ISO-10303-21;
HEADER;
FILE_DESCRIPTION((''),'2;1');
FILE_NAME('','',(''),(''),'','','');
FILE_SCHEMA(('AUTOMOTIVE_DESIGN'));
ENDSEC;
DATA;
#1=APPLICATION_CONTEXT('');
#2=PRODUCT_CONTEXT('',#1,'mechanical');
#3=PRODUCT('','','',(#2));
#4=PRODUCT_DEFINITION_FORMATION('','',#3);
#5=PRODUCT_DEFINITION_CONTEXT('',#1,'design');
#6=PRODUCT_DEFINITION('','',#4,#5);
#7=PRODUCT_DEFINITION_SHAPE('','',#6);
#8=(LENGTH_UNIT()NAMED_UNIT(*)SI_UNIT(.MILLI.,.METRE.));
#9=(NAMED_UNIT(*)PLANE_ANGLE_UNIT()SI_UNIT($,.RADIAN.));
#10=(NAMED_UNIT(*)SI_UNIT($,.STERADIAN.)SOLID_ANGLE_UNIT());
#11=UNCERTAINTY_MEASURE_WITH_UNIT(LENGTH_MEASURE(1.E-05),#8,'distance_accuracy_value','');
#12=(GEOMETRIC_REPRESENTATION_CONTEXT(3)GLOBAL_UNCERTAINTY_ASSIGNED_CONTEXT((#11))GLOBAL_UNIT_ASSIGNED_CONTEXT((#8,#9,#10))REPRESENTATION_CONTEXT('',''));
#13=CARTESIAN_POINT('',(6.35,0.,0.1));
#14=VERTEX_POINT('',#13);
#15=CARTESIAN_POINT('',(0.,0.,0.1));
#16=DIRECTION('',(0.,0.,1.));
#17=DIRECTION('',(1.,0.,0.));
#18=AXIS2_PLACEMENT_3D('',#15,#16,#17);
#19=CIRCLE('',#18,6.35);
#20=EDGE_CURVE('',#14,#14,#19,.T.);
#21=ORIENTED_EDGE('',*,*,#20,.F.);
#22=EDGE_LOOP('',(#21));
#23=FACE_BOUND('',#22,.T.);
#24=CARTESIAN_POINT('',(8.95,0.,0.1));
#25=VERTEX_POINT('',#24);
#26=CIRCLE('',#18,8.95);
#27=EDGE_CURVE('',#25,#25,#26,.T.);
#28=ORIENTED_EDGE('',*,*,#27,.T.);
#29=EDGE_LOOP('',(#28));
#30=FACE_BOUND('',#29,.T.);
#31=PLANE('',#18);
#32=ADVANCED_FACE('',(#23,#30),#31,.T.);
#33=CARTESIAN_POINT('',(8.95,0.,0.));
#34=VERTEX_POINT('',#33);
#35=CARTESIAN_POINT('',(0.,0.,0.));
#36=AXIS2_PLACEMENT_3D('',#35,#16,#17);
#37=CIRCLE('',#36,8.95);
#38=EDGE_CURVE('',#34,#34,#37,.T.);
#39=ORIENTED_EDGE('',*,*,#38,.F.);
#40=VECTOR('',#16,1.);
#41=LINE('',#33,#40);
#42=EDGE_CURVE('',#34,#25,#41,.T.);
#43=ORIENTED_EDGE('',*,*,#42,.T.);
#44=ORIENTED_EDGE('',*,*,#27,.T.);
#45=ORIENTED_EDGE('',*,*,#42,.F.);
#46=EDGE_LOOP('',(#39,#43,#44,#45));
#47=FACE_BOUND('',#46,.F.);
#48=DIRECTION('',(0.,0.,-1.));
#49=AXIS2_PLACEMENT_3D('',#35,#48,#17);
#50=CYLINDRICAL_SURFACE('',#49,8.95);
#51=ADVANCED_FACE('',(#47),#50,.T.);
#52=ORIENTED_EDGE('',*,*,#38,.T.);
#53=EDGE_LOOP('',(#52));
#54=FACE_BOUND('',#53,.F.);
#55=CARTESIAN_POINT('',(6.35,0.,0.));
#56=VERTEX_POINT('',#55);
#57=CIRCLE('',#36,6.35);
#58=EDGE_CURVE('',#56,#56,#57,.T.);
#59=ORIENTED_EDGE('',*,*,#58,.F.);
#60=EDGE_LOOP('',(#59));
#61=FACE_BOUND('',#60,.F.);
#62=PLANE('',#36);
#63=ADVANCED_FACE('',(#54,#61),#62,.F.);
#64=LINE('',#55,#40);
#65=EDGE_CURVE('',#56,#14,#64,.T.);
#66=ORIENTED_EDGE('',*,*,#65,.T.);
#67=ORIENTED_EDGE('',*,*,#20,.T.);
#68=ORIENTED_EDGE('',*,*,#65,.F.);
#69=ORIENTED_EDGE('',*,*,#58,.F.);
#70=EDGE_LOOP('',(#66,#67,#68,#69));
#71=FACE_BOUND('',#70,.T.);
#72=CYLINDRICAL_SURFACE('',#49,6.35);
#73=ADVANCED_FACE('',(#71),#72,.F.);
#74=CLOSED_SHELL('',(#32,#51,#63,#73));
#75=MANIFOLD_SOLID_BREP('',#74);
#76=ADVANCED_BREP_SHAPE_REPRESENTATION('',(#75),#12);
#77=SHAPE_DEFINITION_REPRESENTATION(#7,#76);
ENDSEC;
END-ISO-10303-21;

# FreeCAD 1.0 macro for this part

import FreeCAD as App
import Part
import Sketcher

V = App.Vector
Q = App.Units.Quantity

doc = App.newDocument("Part")
body = doc.addObject("PartDesign::Body", "Body")

# Sketch on XY plane
sketch1 = body.newObject("Sketcher::SketchObject", "Sketch")
sketch1.AttachmentSupport = (doc.getObject("XY_Plane"), [""])
sketch1.MapMode = "FlatFace"
sketch1.addGeometry([
    Part.Circle(V(0, 0, 0), V(0, 0, 1), 9),
    Part.Circle(V(0, 0, 0), V(0, 0, 1), 6),
], False)
sketch1.addConstraint([
    Sketcher.Constraint("Coincident", 0, 3, -1, 1),
    Sketcher.Constraint("Coincident", 1, 3, -1, 1),
    Sketcher.Constraint("Diameter", 0, Q("17.9 mm")),
    Sketcher.Constraint("Diameter", 1, Q("12.7 mm")),
])
pad1 = body.newObject("PartDesign::Pad", "Pad")
pad1.Profile = sketch1
pad1.Length = 0.1

doc.recompute()
